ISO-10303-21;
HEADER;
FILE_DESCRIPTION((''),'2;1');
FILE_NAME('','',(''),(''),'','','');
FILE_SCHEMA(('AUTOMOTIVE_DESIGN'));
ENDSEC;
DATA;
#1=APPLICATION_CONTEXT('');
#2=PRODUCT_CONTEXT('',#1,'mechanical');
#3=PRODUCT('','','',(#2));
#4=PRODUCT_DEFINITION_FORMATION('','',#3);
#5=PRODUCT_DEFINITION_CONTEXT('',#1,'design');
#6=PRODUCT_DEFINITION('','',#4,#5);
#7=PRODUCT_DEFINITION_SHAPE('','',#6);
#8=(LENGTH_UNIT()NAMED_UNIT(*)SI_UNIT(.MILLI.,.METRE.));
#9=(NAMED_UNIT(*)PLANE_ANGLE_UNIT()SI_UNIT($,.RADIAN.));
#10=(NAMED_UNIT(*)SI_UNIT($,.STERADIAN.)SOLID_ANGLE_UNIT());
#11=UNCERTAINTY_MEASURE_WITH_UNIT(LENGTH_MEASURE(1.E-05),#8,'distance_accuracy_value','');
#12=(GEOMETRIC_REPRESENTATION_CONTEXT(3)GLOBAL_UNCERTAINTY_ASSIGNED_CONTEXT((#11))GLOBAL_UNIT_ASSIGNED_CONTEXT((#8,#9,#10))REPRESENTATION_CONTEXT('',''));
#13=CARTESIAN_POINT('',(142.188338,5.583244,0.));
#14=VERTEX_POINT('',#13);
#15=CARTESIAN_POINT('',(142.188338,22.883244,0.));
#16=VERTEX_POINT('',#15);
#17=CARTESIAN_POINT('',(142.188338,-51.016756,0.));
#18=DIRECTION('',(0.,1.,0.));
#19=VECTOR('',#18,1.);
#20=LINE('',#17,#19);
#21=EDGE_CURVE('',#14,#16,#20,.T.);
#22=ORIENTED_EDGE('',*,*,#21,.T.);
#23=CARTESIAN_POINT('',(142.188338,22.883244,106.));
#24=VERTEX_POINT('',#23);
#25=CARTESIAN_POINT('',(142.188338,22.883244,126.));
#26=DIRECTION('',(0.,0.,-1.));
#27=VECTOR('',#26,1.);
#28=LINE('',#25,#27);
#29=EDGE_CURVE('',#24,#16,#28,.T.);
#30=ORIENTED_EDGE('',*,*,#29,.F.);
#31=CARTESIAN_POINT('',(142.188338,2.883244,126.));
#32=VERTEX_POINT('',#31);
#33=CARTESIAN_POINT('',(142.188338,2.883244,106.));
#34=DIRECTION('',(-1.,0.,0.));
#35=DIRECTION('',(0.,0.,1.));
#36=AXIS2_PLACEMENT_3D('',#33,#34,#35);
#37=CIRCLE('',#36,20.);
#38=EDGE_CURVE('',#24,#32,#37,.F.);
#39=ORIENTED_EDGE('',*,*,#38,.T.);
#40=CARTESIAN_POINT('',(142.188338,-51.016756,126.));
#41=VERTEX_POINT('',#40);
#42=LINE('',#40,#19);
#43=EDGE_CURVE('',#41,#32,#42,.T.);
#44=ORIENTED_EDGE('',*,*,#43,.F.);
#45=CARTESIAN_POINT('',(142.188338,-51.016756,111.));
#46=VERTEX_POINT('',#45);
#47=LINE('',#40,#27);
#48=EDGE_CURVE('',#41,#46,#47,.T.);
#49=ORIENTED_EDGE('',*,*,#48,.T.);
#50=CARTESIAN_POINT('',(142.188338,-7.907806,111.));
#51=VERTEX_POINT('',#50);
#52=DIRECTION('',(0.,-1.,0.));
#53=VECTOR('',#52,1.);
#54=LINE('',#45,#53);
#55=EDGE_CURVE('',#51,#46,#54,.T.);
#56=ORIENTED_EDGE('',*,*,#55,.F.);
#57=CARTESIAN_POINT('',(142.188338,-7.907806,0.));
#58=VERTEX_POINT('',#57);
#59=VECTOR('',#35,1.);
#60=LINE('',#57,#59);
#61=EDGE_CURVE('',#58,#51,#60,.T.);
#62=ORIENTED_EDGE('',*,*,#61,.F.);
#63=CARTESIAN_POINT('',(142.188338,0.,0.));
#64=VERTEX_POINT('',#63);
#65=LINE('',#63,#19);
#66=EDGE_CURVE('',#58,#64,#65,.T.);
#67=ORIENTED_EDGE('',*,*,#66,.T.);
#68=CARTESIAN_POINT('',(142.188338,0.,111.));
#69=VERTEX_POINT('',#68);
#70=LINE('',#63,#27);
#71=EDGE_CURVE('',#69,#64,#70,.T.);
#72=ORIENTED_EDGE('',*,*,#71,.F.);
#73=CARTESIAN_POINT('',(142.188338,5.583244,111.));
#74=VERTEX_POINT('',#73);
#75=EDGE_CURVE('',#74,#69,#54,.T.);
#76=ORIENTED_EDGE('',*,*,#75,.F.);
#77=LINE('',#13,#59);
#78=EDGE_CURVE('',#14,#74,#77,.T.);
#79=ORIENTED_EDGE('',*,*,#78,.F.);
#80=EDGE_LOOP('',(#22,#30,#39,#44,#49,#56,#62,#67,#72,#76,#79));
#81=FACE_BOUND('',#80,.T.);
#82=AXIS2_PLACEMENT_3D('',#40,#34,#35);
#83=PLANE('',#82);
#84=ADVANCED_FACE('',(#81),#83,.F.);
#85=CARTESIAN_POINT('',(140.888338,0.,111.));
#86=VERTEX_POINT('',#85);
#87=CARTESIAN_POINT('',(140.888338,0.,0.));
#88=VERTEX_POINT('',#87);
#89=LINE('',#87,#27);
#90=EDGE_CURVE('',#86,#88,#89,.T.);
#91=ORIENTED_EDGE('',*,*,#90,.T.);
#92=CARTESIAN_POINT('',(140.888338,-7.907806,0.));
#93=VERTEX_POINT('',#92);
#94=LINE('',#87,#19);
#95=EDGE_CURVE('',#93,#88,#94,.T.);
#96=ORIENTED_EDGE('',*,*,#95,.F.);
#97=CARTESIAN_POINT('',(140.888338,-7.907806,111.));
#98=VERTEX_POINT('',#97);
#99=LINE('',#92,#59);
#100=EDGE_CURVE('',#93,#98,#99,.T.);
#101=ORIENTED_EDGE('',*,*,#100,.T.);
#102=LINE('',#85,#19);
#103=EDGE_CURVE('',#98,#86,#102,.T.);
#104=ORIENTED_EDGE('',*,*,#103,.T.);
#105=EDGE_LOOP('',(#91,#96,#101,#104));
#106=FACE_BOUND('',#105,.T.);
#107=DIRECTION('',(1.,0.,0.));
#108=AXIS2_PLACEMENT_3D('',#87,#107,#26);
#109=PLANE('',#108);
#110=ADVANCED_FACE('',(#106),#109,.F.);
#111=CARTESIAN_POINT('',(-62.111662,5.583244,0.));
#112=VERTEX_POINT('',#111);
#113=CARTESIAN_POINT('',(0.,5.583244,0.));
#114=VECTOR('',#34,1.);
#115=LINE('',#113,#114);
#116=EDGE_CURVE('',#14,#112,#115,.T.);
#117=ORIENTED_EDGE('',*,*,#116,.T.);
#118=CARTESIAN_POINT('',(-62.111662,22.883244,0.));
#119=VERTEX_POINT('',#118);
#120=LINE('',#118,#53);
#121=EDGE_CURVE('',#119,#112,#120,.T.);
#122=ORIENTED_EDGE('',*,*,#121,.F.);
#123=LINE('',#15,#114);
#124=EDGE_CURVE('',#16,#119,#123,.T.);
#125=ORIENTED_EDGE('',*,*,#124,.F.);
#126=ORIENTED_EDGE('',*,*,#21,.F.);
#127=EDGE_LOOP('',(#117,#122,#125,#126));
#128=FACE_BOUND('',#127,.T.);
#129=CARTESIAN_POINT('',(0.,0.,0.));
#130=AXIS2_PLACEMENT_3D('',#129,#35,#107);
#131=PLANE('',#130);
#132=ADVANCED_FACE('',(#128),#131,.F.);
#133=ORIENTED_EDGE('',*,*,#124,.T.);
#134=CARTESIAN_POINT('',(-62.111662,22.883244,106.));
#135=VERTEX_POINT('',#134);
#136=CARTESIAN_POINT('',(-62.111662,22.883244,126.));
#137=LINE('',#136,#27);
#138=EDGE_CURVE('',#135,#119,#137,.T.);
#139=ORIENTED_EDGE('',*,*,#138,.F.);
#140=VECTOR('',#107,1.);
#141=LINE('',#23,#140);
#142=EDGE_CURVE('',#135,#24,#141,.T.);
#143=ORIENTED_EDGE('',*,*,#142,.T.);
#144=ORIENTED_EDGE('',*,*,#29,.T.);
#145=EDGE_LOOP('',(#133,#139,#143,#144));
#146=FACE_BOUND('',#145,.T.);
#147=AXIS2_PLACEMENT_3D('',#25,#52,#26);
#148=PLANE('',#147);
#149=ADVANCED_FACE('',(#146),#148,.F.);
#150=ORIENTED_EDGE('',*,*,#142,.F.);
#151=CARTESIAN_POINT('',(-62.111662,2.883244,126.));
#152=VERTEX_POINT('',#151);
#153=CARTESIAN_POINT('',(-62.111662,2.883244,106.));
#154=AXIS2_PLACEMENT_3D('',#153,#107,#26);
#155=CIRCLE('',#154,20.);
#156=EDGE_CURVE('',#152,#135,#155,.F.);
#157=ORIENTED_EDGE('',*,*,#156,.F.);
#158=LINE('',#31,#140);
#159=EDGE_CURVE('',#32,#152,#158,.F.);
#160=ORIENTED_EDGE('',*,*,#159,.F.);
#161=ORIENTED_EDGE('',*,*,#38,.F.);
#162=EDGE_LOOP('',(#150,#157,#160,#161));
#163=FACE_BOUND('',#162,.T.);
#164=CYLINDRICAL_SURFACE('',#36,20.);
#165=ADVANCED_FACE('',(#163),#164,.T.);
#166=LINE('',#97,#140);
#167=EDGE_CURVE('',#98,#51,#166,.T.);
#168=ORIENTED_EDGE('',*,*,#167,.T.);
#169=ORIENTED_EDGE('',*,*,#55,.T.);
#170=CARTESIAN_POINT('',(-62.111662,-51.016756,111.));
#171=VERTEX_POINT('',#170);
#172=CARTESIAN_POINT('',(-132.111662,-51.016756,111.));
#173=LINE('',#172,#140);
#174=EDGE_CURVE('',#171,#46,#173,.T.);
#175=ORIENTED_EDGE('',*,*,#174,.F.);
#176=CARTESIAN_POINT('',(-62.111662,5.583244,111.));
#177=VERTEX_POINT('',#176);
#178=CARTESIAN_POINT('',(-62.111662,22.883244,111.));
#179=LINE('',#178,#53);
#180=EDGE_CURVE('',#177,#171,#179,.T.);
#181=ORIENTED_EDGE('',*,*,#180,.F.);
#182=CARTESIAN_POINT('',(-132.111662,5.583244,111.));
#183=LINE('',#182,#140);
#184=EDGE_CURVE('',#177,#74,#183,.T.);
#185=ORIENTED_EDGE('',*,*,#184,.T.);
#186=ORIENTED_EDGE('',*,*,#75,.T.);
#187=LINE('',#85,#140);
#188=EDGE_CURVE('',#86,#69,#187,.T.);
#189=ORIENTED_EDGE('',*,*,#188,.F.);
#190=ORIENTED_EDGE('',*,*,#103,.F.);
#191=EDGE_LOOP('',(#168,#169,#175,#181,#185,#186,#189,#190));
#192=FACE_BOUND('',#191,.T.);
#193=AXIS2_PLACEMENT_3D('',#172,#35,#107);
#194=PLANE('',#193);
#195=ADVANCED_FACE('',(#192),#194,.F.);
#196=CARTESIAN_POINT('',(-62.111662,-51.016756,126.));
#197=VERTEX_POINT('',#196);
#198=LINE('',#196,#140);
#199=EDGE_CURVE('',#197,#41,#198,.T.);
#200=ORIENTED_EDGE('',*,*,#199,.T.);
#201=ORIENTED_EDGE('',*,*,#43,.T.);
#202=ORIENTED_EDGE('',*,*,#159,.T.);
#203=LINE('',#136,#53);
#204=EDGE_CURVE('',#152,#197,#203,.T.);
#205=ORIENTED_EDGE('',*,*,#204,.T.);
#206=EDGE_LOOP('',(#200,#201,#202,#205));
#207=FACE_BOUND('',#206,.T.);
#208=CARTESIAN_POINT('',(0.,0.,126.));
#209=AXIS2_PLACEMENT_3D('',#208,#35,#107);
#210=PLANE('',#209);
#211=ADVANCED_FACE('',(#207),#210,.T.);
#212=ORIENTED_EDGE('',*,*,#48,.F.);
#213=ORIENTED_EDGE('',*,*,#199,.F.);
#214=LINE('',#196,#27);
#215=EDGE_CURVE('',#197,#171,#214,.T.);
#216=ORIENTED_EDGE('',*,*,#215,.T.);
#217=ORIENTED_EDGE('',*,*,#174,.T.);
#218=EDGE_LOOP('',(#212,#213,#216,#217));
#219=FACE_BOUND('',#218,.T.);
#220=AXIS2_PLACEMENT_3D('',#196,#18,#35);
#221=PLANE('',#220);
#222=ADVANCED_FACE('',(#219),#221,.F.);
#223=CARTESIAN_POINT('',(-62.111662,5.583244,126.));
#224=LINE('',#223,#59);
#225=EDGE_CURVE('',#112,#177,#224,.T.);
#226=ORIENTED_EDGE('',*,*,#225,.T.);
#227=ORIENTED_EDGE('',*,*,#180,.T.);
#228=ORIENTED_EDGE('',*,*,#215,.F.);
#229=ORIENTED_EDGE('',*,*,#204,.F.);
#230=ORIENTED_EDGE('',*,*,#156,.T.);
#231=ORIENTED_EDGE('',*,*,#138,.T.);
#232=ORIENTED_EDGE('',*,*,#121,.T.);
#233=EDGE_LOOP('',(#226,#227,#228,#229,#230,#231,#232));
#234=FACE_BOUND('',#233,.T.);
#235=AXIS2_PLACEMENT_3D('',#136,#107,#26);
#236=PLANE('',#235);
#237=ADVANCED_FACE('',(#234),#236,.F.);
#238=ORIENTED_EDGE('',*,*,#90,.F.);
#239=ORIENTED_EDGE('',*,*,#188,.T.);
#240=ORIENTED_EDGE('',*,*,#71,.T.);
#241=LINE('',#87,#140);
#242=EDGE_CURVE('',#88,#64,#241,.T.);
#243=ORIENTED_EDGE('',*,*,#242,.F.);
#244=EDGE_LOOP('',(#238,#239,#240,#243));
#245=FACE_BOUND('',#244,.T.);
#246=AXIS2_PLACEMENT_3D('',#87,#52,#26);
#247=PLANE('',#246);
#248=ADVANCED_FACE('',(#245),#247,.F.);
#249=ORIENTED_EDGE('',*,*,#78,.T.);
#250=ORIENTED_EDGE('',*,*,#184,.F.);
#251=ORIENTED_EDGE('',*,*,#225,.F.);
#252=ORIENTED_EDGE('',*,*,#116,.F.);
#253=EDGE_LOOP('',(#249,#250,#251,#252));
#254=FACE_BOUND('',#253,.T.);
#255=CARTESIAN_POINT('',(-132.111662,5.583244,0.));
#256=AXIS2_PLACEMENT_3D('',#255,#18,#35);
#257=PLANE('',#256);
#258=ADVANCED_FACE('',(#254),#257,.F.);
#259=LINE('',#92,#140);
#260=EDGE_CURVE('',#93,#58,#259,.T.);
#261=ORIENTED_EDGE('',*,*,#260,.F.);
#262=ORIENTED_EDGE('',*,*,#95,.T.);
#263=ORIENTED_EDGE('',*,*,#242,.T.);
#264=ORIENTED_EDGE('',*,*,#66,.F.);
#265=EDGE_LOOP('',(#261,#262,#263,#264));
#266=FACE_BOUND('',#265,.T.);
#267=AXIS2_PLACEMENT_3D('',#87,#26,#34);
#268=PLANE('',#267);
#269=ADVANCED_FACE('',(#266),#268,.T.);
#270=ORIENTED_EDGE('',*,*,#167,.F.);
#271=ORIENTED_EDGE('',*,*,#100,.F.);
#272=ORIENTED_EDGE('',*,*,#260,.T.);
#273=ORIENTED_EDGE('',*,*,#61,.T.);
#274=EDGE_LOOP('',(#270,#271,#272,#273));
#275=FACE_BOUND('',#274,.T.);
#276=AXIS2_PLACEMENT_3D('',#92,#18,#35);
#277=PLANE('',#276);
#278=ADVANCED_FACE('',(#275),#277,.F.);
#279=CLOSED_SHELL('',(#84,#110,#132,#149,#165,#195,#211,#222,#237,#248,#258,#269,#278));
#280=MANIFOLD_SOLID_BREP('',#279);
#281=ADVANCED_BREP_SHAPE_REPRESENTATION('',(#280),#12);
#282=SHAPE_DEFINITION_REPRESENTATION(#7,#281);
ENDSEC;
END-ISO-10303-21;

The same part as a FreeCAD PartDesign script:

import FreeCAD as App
import Part
import Sketcher
from FreeCAD import Vector


def edges_at(feature, points):
    """Names of the edges that pass closest to the given points."""
    edges = feature.Shape.Edges
    near = lambda p: min(range(len(edges)), key=lambda i: edges[i].distToShape(Part.Vertex(*p))[0])
    return sorted({f"Edge{near(p) + 1}" for p in points})

doc = App.newDocument("Part")
body = doc.addObject("PartDesign::Body", "Body")

sketch1 = body.newObject("Sketcher::SketchObject", "Sketch")
sketch1.AttachmentSupport = (doc.getObject("XY_Plane"), [""])
sketch1.MapMode = "FlatFace"
sketch1.addGeometry([
    Part.LineSegment(Vector(-62, 23, 0), Vector(-62, -51, 0)),
    Part.LineSegment(Vector(-62, -51, 0), Vector(142, -51, 0)),
    Part.LineSegment(Vector(142, -51, 0), Vector(142, 23, 0)),
    Part.LineSegment(Vector(142, 23, 0), Vector(-62, 23, 0)),
], False)
sketch1.addConstraint([
    Sketcher.Constraint("Coincident", 0, 2, 1, 1),
    Sketcher.Constraint("Coincident", 1, 2, 2, 1),
    Sketcher.Constraint("Coincident", 2, 2, 3, 1),
    Sketcher.Constraint("Coincident", 3, 2, 0, 1),
    Sketcher.Constraint("Vertical", 0),
    Sketcher.Constraint("Horizontal", 1),
    Sketcher.Constraint("Vertical", 2),
    Sketcher.Constraint("Horizontal", 3),
    Sketcher.Constraint("DistanceX", 1, 1, 1, 2, 204.3),
    Sketcher.Constraint("DistanceY", 0, 2, 0, 1, 73.9),
    Sketcher.Constraint("DistanceX", 0, 2, -1, 1, 62.111662),
    Sketcher.Constraint("DistanceY", 0, 2, -1, 1, 51.016756),
])
pad1 = body.newObject("PartDesign::Pad", "Pad")
pad1.Profile = sketch1
pad1.Length = 126

sketch2 = body.newObject("Sketcher::SketchObject", "Sketch001")
sketch2.AttachmentSupport = (doc.getObject("YZ_Plane"), [""])
sketch2.MapMode = "FlatFace"
sketch2.AttachmentOffset = App.Placement(Vector(0, 0, 142.188338), App.Rotation())
sketch2.addGeometry([
    Part.LineSegment(Vector(6, 111, 0), Vector(-51, 111, 0)),
    Part.LineSegment(Vector(-51, 111, 0), Vector(-51, 0, 0)),
    Part.LineSegment(Vector(-51, 0, 0), Vector(6, 0, 0)),
    Part.LineSegment(Vector(6, 0, 0), Vector(6, 111, 0)),
], False)
sketch2.addConstraint([
    Sketcher.Constraint("Coincident", 0, 2, 1, 1),
    Sketcher.Constraint("Coincident", 1, 2, 2, 1),
    Sketcher.Constraint("Coincident", 2, 2, 3, 1),
    Sketcher.Constraint("Coincident", 3, 2, 0, 1),
    Sketcher.Constraint("Horizontal", 0),
    Sketcher.Constraint("Vertical", 1),
    Sketcher.Constraint("Horizontal", 2),
    Sketcher.Constraint("Vertical", 3),
    Sketcher.Constraint("PointOnObject", 1, 2, -1),
    Sketcher.Constraint("DistanceY", 1, 2, 1, 1, 111.0),
    Sketcher.Constraint("DistanceX", 0, 2, 0, 1, 56.6),
    Sketcher.Constraint("DistanceX", 0, 2, -1, 1, 51.016756),
])
pocket1 = body.newObject("PartDesign::Pocket", "Pocket")
pocket1.Profile = sketch2
pocket1.Length = 274.3
doc.recompute()

fillet = body.newObject("PartDesign::Fillet", "Fillet")
fillet.Base = (pocket1, edges_at(pocket1, [(40.038, 22.883, 126)]))
fillet.Radius = 20

sketch3 = body.newObject("Sketcher::SketchObject", "Sketch002")
sketch3.AttachmentSupport = (doc.getObject("YZ_Plane"), [""])
sketch3.MapMode = "FlatFace"
sketch3.AttachmentOffset = App.Placement(Vector(0, 0, 142.188338), App.Rotation())
sketch3.addGeometry([
    Part.LineSegment(Vector(0, 111, 0), Vector(-8, 111, 0)),
    Part.LineSegment(Vector(-8, 111, 0), Vector(-8, 0, 0)),
    Part.LineSegment(Vector(-8, 0, 0), Vector(0, 0, 0)),
    Part.LineSegment(Vector(0, 0, 0), Vector(0, 111, 0)),
], False)
sketch3.addConstraint([
    Sketcher.Constraint("Coincident", 0, 2, 1, 1),
    Sketcher.Constraint("Coincident", 1, 2, 2, 1),
    Sketcher.Constraint("Coincident", 2, 2, 3, 1),
    Sketcher.Constraint("Coincident", 3, 2, 0, 1),
    Sketcher.Constraint("Horizontal", 0),
    Sketcher.Constraint("Vertical", 1),
    Sketcher.Constraint("Horizontal", 2),
    Sketcher.Constraint("Vertical", 3),
    Sketcher.Constraint("Coincident", 2, 2, -1, 1),
    Sketcher.Constraint("DistanceY", 1, 2, 1, 1, 111.0),
    Sketcher.Constraint("DistanceX", 0, 2, 0, 1, 7.907806),
])
pad2 = body.newObject("PartDesign::Pad", "Pad001")
pad2.Profile = sketch3
pad2.Length = 1.3
pad2.Reversed = True

doc.recompute()
